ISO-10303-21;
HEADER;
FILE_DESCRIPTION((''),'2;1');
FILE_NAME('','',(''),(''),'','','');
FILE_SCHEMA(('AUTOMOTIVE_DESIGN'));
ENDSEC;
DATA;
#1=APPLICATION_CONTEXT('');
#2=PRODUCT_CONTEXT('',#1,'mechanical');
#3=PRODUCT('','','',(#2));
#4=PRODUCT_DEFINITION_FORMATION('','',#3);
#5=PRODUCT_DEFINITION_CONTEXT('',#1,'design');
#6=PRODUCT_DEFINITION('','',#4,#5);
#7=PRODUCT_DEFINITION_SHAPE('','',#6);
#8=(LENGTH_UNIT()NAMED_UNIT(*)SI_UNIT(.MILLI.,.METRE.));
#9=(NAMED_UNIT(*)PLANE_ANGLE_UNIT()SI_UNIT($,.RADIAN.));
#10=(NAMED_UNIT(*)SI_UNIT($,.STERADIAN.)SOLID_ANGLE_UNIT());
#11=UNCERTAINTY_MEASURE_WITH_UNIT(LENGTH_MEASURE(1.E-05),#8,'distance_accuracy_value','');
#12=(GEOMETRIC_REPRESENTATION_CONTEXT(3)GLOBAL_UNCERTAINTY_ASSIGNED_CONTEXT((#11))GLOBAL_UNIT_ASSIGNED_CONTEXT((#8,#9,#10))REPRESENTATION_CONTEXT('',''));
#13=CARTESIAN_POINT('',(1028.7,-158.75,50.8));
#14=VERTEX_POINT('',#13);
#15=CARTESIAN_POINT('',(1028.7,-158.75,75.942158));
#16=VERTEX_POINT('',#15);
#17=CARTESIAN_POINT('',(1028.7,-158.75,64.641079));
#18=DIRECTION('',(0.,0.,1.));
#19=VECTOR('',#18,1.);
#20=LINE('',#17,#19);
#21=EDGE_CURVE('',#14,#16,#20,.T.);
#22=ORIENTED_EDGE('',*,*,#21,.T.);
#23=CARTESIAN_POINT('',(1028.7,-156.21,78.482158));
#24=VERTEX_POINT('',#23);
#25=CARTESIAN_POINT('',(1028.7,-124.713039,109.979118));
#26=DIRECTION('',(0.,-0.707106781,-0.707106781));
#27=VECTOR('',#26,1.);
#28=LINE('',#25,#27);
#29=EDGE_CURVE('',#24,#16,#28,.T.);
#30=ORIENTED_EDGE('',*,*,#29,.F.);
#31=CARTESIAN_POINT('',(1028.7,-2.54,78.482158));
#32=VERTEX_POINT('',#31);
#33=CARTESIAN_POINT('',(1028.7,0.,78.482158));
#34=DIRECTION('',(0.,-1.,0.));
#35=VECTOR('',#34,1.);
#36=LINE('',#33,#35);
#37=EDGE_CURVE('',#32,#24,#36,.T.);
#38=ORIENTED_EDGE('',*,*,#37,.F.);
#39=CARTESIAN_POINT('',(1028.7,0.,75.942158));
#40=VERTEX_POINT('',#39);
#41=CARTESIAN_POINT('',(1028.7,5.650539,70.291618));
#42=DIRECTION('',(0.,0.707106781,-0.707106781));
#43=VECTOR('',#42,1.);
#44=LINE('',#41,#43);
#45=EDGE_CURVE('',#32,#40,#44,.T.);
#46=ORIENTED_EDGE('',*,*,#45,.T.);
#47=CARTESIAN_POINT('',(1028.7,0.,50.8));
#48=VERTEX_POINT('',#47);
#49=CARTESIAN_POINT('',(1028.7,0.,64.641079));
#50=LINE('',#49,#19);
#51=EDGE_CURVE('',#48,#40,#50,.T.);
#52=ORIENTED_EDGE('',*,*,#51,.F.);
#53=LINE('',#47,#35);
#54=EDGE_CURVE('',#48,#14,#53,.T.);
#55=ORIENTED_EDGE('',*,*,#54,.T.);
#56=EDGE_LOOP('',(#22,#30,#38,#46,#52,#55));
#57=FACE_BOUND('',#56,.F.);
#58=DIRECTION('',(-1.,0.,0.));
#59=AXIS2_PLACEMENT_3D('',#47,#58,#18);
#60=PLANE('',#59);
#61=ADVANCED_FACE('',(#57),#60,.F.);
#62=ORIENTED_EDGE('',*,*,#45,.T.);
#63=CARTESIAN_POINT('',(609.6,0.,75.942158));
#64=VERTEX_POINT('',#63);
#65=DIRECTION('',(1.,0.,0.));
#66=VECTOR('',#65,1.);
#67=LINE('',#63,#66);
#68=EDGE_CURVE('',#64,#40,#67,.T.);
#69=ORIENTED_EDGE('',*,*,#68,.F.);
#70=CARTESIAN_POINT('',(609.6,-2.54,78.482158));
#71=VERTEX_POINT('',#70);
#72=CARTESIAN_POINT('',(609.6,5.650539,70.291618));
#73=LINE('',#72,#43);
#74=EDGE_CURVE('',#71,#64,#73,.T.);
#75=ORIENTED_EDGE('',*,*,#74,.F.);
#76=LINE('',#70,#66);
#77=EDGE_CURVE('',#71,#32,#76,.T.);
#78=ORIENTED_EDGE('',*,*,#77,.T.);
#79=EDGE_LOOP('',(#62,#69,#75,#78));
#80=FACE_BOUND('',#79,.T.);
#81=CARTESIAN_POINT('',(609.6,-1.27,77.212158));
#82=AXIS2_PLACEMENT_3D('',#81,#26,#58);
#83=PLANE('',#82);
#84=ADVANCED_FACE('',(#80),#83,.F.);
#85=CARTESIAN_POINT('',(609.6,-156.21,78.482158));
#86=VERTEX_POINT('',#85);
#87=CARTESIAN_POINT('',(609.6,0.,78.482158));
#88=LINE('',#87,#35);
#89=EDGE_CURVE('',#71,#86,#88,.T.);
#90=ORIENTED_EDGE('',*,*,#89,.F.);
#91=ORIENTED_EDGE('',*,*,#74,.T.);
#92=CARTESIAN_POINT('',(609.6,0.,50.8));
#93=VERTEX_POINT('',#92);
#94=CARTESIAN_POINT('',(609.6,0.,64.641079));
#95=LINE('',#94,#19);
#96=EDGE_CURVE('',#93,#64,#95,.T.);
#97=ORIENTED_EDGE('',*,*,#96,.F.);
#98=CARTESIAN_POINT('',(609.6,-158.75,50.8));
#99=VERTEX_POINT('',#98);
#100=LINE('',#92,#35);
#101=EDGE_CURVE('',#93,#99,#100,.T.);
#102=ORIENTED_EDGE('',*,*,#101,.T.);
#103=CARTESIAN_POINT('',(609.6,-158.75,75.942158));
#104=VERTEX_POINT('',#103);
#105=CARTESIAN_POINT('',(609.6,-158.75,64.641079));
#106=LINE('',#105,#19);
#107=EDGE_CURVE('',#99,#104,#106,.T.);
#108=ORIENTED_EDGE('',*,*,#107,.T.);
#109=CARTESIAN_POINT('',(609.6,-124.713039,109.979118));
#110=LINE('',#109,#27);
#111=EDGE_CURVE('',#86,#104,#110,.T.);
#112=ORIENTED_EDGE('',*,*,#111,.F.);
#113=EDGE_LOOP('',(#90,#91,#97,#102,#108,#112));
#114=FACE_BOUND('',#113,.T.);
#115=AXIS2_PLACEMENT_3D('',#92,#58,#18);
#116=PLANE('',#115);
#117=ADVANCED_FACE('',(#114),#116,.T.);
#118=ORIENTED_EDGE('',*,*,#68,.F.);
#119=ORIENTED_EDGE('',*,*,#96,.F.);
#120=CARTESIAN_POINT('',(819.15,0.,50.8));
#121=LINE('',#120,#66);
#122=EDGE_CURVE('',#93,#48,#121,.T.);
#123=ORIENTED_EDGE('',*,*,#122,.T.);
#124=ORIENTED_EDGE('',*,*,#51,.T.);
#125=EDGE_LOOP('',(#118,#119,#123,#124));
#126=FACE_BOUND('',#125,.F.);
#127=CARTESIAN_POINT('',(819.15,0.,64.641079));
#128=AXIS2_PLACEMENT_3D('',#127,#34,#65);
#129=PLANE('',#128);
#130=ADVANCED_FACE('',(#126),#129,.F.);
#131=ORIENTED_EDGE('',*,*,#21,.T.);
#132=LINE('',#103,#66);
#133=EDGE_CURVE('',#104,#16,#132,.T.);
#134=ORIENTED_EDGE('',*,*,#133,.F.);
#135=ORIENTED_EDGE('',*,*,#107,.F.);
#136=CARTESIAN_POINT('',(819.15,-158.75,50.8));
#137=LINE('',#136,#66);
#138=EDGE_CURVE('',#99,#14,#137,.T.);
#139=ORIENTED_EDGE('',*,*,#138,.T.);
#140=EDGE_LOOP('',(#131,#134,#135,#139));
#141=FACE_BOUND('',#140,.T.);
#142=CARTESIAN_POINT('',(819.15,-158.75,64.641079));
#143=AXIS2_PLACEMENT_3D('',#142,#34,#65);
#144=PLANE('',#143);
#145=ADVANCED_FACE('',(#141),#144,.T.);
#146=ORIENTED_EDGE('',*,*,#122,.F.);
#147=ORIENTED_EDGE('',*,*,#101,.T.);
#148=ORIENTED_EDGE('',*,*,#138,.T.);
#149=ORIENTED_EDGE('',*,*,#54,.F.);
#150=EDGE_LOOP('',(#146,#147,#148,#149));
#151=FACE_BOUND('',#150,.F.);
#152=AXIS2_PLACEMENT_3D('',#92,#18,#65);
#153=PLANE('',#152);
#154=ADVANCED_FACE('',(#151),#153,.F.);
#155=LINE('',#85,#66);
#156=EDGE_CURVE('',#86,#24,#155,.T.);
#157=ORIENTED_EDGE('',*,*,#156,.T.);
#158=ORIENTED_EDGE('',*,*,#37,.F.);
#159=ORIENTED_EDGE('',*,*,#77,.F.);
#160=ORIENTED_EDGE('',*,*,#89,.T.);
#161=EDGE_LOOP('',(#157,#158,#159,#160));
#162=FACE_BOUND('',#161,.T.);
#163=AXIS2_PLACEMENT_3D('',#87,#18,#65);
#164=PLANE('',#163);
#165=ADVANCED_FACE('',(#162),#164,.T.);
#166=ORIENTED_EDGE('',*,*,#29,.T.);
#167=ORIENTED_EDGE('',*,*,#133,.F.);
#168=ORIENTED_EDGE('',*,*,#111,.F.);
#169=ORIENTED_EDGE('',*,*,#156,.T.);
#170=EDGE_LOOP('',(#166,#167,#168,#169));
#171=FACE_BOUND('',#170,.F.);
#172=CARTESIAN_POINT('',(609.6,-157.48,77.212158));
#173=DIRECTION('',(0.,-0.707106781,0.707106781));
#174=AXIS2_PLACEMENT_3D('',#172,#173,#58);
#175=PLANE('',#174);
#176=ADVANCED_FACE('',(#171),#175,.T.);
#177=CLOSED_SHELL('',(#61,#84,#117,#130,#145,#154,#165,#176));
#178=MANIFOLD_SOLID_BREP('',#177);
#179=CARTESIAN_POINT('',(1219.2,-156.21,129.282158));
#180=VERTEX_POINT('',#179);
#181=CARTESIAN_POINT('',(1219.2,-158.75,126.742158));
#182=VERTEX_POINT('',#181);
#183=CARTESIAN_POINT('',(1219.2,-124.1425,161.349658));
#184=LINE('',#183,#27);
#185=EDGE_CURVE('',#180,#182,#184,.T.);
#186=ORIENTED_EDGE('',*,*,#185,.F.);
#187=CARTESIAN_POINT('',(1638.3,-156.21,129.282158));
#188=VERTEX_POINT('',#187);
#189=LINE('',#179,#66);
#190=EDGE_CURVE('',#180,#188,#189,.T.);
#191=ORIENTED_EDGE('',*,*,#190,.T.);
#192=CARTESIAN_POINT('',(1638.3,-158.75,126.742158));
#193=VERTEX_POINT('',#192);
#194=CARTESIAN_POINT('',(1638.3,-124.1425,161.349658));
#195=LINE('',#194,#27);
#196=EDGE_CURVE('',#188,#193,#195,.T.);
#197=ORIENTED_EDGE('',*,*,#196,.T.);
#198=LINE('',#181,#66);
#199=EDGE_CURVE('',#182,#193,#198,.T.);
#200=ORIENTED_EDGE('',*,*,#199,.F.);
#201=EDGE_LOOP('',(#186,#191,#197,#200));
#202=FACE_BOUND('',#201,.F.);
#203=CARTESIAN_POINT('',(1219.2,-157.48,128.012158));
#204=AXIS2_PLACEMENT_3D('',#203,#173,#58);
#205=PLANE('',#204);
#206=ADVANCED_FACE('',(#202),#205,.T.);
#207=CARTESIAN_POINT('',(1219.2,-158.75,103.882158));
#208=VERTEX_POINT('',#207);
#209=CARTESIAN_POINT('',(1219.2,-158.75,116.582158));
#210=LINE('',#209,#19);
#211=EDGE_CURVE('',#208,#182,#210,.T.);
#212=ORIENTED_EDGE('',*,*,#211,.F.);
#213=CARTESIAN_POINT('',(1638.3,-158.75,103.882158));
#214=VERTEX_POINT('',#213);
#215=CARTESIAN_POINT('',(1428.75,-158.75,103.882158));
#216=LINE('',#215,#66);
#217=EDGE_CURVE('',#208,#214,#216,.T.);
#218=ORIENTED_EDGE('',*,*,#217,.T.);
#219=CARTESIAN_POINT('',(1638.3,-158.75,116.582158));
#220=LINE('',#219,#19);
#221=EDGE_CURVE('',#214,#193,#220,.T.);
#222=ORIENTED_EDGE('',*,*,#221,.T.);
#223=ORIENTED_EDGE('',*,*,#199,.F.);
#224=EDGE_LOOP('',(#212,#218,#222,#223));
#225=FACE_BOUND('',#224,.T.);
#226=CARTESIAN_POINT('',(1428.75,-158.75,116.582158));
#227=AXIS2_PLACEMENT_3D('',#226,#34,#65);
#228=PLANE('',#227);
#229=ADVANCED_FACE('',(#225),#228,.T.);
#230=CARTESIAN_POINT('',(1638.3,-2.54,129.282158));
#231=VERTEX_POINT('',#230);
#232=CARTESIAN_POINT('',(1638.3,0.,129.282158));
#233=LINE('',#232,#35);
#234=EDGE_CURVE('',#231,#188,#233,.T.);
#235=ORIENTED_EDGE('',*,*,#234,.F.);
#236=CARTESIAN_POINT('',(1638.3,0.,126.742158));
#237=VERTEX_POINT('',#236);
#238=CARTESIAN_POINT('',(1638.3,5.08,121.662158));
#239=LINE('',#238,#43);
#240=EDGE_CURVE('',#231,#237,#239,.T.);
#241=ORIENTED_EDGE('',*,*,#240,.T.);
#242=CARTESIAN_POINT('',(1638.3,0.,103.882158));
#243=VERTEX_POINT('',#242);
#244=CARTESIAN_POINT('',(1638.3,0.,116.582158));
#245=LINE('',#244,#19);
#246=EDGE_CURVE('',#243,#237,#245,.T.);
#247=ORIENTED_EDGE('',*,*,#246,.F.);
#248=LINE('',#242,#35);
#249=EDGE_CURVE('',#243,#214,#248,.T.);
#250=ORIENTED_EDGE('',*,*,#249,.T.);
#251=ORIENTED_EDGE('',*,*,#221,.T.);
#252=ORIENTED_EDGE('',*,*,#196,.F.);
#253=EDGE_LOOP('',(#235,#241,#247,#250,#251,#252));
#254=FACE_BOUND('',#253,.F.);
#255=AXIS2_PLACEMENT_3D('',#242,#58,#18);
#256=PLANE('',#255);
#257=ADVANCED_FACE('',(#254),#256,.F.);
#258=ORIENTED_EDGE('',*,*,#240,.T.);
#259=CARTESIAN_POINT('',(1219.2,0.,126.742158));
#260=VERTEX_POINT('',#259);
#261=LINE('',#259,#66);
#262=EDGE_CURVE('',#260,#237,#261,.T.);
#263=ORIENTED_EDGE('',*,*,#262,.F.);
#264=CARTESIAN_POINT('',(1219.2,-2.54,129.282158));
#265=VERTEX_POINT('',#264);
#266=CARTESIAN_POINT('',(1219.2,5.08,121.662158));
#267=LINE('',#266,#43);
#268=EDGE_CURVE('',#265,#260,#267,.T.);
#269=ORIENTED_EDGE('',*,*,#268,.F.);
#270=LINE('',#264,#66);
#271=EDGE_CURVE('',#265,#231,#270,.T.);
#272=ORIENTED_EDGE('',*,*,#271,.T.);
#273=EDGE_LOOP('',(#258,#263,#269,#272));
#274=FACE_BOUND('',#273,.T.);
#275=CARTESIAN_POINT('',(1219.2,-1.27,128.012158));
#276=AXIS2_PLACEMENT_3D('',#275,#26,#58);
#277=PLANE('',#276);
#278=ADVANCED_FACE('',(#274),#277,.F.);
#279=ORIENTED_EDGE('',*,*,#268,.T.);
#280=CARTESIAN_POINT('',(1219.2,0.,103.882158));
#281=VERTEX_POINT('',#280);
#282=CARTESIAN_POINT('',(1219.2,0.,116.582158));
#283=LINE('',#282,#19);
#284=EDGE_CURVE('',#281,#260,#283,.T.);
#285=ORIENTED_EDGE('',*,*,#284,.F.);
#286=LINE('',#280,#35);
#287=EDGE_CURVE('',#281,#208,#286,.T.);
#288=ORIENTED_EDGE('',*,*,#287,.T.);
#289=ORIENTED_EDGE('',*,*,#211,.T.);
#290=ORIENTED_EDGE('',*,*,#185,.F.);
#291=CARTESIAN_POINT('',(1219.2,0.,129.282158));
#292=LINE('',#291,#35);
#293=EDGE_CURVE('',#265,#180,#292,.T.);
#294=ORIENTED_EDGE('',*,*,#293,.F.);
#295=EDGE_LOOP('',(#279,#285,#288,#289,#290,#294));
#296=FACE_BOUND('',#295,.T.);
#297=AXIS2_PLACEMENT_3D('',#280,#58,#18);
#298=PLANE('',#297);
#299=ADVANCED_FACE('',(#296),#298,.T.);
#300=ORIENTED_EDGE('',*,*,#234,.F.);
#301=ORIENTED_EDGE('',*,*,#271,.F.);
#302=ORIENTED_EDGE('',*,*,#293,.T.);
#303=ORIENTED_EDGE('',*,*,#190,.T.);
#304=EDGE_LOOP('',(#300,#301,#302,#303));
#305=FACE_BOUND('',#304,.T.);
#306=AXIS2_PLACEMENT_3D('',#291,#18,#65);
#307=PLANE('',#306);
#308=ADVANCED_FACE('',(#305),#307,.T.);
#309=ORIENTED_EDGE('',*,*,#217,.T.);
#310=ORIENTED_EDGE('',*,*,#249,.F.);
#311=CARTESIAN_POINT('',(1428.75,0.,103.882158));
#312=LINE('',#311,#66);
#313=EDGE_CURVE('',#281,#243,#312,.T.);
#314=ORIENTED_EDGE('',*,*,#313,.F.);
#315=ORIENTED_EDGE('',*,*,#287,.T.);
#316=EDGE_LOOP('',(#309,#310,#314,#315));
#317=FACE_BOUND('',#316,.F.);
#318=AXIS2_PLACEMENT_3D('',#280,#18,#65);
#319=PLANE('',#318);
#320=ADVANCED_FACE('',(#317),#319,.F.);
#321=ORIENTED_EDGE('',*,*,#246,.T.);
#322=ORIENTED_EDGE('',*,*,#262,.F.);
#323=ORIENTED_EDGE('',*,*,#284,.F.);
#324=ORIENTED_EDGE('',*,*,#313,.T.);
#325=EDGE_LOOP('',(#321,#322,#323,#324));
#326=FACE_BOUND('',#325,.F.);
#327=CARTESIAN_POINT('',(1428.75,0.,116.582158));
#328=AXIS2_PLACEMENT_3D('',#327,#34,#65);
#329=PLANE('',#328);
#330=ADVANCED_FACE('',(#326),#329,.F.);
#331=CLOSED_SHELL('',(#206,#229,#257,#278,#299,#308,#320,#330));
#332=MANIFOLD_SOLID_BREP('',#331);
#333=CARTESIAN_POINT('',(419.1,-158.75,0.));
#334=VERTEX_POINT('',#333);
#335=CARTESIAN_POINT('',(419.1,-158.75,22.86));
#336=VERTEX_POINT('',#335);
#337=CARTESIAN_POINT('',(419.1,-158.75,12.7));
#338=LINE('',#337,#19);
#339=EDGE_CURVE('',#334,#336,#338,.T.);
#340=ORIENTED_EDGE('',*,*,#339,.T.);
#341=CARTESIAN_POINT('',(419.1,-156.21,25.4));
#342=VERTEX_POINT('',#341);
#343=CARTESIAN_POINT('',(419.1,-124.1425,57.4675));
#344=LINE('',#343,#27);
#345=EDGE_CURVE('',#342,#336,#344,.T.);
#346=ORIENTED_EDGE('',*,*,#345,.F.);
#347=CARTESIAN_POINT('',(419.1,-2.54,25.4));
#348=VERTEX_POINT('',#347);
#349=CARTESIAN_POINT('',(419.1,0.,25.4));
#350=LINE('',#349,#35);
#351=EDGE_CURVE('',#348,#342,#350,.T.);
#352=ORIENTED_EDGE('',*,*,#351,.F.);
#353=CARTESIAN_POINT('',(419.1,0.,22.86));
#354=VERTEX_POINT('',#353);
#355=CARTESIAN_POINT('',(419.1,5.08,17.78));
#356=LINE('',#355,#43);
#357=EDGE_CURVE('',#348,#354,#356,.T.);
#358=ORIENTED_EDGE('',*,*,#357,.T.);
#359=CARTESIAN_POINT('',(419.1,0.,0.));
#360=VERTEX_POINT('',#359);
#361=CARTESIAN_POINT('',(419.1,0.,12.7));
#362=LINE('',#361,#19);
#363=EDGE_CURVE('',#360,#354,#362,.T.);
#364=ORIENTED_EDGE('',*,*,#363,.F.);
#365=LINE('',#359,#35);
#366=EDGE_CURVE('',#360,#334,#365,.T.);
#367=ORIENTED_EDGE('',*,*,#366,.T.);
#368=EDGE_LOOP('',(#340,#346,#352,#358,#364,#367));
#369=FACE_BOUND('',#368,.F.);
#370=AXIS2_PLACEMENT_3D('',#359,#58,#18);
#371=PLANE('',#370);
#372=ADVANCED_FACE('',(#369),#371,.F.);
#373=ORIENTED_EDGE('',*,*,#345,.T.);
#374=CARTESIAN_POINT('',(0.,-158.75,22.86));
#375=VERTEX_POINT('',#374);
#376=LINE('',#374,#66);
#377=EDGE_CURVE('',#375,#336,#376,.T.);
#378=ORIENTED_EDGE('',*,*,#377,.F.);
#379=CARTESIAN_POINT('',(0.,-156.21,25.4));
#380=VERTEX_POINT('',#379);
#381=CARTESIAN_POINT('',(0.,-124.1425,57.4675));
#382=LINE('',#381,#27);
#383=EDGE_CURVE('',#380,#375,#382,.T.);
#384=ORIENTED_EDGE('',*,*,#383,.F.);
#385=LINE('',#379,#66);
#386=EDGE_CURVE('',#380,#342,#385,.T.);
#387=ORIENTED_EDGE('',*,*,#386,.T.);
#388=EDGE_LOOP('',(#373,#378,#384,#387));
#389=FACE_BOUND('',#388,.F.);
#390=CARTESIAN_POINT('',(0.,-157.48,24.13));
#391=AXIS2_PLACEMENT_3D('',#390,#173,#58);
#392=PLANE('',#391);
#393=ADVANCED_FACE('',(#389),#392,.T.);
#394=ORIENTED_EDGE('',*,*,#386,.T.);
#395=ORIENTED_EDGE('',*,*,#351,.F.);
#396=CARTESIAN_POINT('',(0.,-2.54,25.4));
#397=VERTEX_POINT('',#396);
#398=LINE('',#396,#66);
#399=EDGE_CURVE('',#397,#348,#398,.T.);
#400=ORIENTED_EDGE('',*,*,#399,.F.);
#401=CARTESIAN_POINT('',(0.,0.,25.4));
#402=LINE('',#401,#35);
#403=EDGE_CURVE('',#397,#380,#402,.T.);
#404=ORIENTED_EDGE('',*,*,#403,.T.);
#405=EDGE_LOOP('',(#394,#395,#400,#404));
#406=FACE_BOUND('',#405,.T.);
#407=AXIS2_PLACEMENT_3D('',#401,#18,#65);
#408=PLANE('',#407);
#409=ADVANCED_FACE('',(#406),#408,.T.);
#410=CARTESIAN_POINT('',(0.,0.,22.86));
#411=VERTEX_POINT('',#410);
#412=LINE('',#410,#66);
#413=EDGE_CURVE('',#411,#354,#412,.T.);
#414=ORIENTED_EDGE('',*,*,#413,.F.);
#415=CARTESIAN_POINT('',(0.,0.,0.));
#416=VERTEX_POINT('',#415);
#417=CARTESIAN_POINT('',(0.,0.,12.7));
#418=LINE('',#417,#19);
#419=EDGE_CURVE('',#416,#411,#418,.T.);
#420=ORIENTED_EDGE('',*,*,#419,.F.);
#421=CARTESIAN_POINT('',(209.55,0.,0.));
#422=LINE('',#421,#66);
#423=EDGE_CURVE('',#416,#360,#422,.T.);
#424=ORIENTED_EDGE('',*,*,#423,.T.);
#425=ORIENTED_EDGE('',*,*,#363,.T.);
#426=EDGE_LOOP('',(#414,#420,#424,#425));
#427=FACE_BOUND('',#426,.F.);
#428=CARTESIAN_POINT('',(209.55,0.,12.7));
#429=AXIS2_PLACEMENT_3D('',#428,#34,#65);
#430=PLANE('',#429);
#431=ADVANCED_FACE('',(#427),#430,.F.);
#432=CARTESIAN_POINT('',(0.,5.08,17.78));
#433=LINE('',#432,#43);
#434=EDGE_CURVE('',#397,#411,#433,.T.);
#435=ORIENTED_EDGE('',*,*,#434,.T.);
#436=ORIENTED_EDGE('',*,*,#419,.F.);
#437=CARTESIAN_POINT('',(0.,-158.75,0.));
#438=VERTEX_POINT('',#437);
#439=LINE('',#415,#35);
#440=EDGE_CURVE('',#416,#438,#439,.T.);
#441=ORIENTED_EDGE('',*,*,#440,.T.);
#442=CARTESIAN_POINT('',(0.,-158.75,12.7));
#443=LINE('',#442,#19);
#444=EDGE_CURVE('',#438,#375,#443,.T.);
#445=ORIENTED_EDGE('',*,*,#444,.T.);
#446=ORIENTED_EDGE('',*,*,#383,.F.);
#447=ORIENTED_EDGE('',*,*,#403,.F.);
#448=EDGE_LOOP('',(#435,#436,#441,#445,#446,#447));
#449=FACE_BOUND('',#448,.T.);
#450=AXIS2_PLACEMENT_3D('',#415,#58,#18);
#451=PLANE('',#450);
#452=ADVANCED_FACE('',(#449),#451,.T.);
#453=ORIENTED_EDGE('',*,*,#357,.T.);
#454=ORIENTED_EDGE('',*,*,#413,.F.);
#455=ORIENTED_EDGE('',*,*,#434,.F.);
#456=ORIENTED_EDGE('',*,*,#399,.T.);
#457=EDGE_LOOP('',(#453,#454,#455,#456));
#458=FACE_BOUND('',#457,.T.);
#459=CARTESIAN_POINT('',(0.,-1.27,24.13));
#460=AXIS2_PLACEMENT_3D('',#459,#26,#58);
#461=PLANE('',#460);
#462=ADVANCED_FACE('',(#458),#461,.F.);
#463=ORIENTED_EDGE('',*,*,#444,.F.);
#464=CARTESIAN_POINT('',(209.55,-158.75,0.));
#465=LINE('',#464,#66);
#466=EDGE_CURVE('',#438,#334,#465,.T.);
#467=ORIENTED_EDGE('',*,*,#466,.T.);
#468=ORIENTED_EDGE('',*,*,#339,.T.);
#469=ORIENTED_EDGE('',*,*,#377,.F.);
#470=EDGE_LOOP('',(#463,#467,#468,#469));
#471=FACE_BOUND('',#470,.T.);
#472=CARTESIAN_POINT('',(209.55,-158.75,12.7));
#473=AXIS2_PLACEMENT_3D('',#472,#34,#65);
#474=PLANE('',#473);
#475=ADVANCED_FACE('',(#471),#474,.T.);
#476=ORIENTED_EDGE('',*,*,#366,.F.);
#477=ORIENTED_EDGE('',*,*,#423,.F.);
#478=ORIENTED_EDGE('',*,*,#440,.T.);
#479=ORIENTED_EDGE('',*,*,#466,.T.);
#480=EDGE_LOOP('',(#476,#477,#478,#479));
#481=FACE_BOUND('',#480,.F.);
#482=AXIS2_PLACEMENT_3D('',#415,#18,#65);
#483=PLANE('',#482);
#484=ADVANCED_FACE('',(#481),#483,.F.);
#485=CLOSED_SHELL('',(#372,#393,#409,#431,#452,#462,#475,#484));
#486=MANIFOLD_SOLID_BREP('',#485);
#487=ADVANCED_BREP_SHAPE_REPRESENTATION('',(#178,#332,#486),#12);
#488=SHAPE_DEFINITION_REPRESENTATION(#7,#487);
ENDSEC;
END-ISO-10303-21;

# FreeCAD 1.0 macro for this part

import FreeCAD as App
import Part
import Sketcher

V = App.Vector
Q = App.Units.Quantity


def edges_at(feature, points):
    """Names of the edges that pass closest to the given points."""
    edges = feature.Shape.Edges
    near = lambda p: min(range(len(edges)), key=lambda i: edges[i].distToShape(Part.Vertex(*p))[0])
    return sorted({f"Edge{near(p) + 1}" for p in points})


def add_polygon(sketch, points):
    """Adds a closed chain of lines whose ends are joined by coincident constraints."""
    first, n = sketch.GeometryCount, len(points)
    for a, b in zip(points, points[1:] + points[:1]):
        sketch.addGeometry(Part.LineSegment(App.Vector(*a, 0), App.Vector(*b, 0)), False)
    for i in range(n):
        sketch.addConstraint(Sketcher.Constraint("Coincident", first + i, 2, first + (i + 1) % n, 1))

doc = App.newDocument("Part")
params = doc.addObject("Spreadsheet::Sheet", "Params")
for row, (alias, value) in enumerate([
    ("sketch1_height", "1 in"),
    ("sketch1_width", "16.5 in"),
    ("pad1_length", "6.25 in"),
    ("chamfer_size", "0.1 in"),
], start=1):
    params.set(f"A{row}", alias)
    params.set(f"B{row}", "=" + value)
    params.setAlias(f"B{row}", alias)

body = doc.addObject("PartDesign::Body", "Body")
body.AllowCompound = True

# Sketch on XZ plane
sketch1 = body.newObject("Sketcher::SketchObject", "Sketch")
sketch1.AttachmentSupport = (doc.getObject("XZ_Plane"), [""])
sketch1.MapMode = "FlatFace"
add_polygon(sketch1, [(0, 25), (0, 0), (419, 0), (419, 25)])  # lines 0-3
add_polygon(sketch1, [(610, 78), (610, 51), (1029, 51), (1029, 78)])  # lines 4-7
add_polygon(sketch1, [(1219, 129), (1219, 104), (1638, 104), (1638, 129)])  # lines 8-11
sketch1.addConstraint([
    Sketcher.Constraint("Vertical", 0),
    Sketcher.Constraint("Horizontal", 1),
    Sketcher.Constraint("Vertical", 2),
    Sketcher.Constraint("Horizontal", 3),
    Sketcher.Constraint("Vertical", 4),
    Sketcher.Constraint("Horizontal", 5),
    Sketcher.Constraint("Vertical", 6),
    Sketcher.Constraint("Horizontal", 7),
    Sketcher.Constraint("Vertical", 8),
    Sketcher.Constraint("Horizontal", 9),
    Sketcher.Constraint("Vertical", 10),
    Sketcher.Constraint("Horizontal", 11),
    Sketcher.Constraint("Coincident", 0, 2, -1, 1),
    Sketcher.Constraint("Equal", 3, 5),
    Sketcher.Constraint("Equal", 7, 9),
    Sketcher.Constraint("Equal", 2, 8),
    Sketcher.Constraint("DistanceY", 0, 2, 0, 1, Q("1 in")),
    Sketcher.Constraint("DistanceX", 1, 1, 1, 2, Q("16.5 in")),
    Sketcher.Constraint("DistanceX", -1, 1, 4, 2, Q("24 in")),
    Sketcher.Constraint("DistanceY", -1, 1, 4, 2, Q("2 in")),
    Sketcher.Constraint("DistanceX", -1, 1, 8, 2, Q("48 in")),
    Sketcher.Constraint("DistanceY", 6, 2, 8, 2, Q("1 in")),
    Sketcher.Constraint("DistanceY", 4, 2, 4, 1, Q("27.682158 mm")),
])
sketch1.setExpression("Constraints[28]", "Params.sketch1_height")
sketch1.setExpression("Constraints[29]", "Params.sketch1_width")
pad1 = body.newObject("PartDesign::Pad", "Pad")
pad1.Profile = sketch1
pad1.setExpression("Length", "Params.pad1_length")
doc.recompute()

chamfer = body.newObject("PartDesign::Chamfer", "Chamfer")
chamfer.Base = (pad1, edges_at(pad1, [
    (209.55, -158.75, 25.4),
    (819.15, -158.75, 78.482),
    (1428.75, -158.75, 129.282),
    (1428.75, 0, 129.282),
    (819.15, 0, 78.482),
    (209.55, 0, 25.4),
]))
chamfer.setExpression("Size", "Params.chamfer_size")

doc.recompute()
